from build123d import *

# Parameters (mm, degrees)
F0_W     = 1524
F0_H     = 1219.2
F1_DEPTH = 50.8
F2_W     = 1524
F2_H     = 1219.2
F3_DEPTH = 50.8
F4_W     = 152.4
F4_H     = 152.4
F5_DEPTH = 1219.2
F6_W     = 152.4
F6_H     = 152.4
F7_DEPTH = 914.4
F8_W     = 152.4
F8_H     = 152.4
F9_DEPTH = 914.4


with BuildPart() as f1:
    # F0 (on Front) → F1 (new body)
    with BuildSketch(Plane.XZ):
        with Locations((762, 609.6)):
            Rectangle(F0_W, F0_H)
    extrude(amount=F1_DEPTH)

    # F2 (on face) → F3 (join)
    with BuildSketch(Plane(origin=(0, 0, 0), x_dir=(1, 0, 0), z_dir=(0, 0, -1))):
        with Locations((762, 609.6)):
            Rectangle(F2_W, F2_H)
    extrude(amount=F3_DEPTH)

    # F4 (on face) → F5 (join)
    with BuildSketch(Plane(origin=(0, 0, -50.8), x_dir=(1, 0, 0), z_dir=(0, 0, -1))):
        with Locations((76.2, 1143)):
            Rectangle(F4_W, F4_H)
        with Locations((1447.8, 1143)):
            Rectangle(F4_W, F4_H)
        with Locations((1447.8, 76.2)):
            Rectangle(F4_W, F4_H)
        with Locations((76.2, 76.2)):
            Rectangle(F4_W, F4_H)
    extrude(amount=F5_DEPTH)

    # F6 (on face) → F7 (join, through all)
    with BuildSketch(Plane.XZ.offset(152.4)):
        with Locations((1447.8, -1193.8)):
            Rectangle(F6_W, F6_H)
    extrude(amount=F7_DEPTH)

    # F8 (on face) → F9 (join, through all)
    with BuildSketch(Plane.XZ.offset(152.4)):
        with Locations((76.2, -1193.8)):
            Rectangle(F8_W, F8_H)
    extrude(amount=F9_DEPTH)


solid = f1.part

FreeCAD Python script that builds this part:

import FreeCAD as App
import Part
import Sketcher
from FreeCAD import Vector
Q = App.Units.Quantity


def add_polygon(sketch, points):
    """Adds a closed chain of lines whose ends are joined by coincident constraints."""
    first, n = sketch.GeometryCount, len(points)
    for a, b in zip(points, points[1:] + points[:1]):
        sketch.addGeometry(Part.LineSegment(App.Vector(*a, 0), App.Vector(*b, 0)), False)
    for i in range(n):
        sketch.addConstraint(Sketcher.Constraint("Coincident", first + i, 2, first + (i + 1) % n, 1))

doc = App.newDocument("Part")
body = doc.addObject("PartDesign::Body", "Body")

# Sketch on XZ plane
sketch1 = body.newObject("Sketcher::SketchObject", "Sketch")
sketch1.AttachmentSupport = (doc.getObject("XZ_Plane"), [""])
sketch1.MapMode = "FlatFace"
add_polygon(sketch1, [(0, 1219), (0, 0), (1524, 0), (1524, 1219)])  # lines 0-3
sketch1.addConstraint(Sketcher.Constraint("Vertical", 0))
sketch1.addConstraint(Sketcher.Constraint("Horizontal", 1))
sketch1.addConstraint(Sketcher.Constraint("Vertical", 2))
sketch1.addConstraint(Sketcher.Constraint("Horizontal", 3))
sketch1.addConstraint(Sketcher.Constraint("Coincident", 0, 2, -1, 1))
sketch1.addConstraint(Sketcher.Constraint("DistanceX", 1, 1, 1, 2, Q("60 in")))
sketch1.addConstraint(Sketcher.Constraint("DistanceY", 0, 2, 0, 1, Q("48 in")))
pad1 = body.newObject("PartDesign::Pad", "Pad")
pad1.Profile = sketch1
pad1.Length = Q("2 in")

# Sketch on XY plane
sketch2 = body.newObject("Sketcher::SketchObject", "Sketch001")
sketch2.AttachmentSupport = (doc.getObject("XY_Plane"), [""])
sketch2.MapMode = "FlatFace"
add_polygon(sketch2, [(0, -1219), (0, 0), (1524, 0), (1524, -1219)])  # lines 0-3
sketch2.addConstraint(Sketcher.Constraint("Vertical", 0))
sketch2.addConstraint(Sketcher.Constraint("Horizontal", 1))
sketch2.addConstraint(Sketcher.Constraint("Vertical", 2))
sketch2.addConstraint(Sketcher.Constraint("Horizontal", 3))
sketch2.addConstraint(Sketcher.Constraint("Coincident", 0, 2, -1, 1))
sketch2.addConstraint(Sketcher.Constraint("DistanceX", 1, 1, 1, 2, Q("60 in")))
sketch2.addConstraint(Sketcher.Constraint("DistanceY", 0, 1, 0, 2, Q("48 in")))
pad2 = body.newObject("PartDesign::Pad", "Pad001")
pad2.Profile = sketch2
pad2.Length = Q("2 in")
pad2.Reversed = True

# Sketch on XY plane
sketch3 = body.newObject("Sketcher::SketchObject", "Sketch002")
sketch3.AttachmentSupport = (doc.getObject("XY_Plane"), [""])
sketch3.MapMode = "FlatFace"
sketch3.AttachmentOffset = App.Placement(Vector(0, 0, -2 * 25.4), App.Rotation())
add_polygon(sketch3, [(0, -1219), (0, -1067), (152, -1067), (152, -1219)])  # lines 0-3
add_polygon(sketch3, [(1372, -1219), (1372, -1067), (1524, -1067), (1524, -1219)])  # lines 4-7
add_polygon(sketch3, [(1372, -152), (1372, 0), (1524, 0), (1524, -152)])  # lines 8-11
add_polygon(sketch3, [(0, -152), (0, 0), (152, 0), (152, -152)])  # lines 12-15
sketch3.addConstraint(Sketcher.Constraint("Vertical", 0))
sketch3.addConstraint(Sketcher.Constraint("Horizontal", 1))
sketch3.addConstraint(Sketcher.Constraint("Vertical", 2))
sketch3.addConstraint(Sketcher.Constraint("Horizontal", 3))
sketch3.addConstraint(Sketcher.Constraint("Vertical", 4))
sketch3.addConstraint(Sketcher.Constraint("Horizontal", 5))
sketch3.addConstraint(Sketcher.Constraint("Vertical", 6))
sketch3.addConstraint(Sketcher.Constraint("Horizontal", 7))
sketch3.addConstraint(Sketcher.Constraint("Vertical", 8))
sketch3.addConstraint(Sketcher.Constraint("Horizontal", 9))
sketch3.addConstraint(Sketcher.Constraint("Vertical", 10))
sketch3.addConstraint(Sketcher.Constraint("Horizontal", 11))
sketch3.addConstraint(Sketcher.Constraint("Vertical", 12))
sketch3.addConstraint(Sketcher.Constraint("Horizontal", 13))
sketch3.addConstraint(Sketcher.Constraint("Vertical", 14))
sketch3.addConstraint(Sketcher.Constraint("Horizontal", 15))
sketch3.addConstraint(Sketcher.Constraint("Coincident", 12, 2, -1, 1))
sketch3.addConstraint(Sketcher.Constraint("PointOnObject", 0, 2, -2))
sketch3.addConstraint(Sketcher.Constraint("PointOnObject", 8, 2, -1))
sketch3.addConstraint(Sketcher.Constraint("Horizontal", 1, 2, 4, 2))
sketch3.addConstraint(Sketcher.Constraint("Horizontal", 3, 2, 6, 2))
sketch3.addConstraint(Sketcher.Constraint("Horizontal", 11, 2, 14, 2))
sketch3.addConstraint(Sketcher.Constraint("Vertical", 7, 2, 8, 2))
sketch3.addConstraint(Sketcher.Constraint("Vertical", 6, 2, 9, 2))
sketch3.addConstraint(Sketcher.Constraint("Vertical", 2, 2, 13, 2))
sketch3.addConstraint(Sketcher.Constraint("Equal", 3, 5))
sketch3.addConstraint(Sketcher.Constraint("Equal", 15, 0))
sketch3.addConstraint(Sketcher.Constraint("Equal", 6, 8))
sketch3.addConstraint(Sketcher.Constraint("DistanceX", 1, 1, 1, 2, Q("6 in")))
sketch3.addConstraint(Sketcher.Constraint("DistanceY", 0, 2, -1, 1, Q("42 in")))
sketch3.addConstraint(Sketcher.Constraint("DistanceX", -1, 1, 4, 2, Q("54 in")))
pad3 = body.newObject("PartDesign::Pad", "Pad002")
pad3.Profile = sketch3
pad3.Length = Q("48 in")
pad3.Reversed = True

# Sketch on XZ plane
sketch4 = body.newObject("Sketcher::SketchObject", "Sketch003")
sketch4.AttachmentSupport = (doc.getObject("XZ_Plane"), [""])
sketch4.MapMode = "FlatFace"
sketch4.AttachmentOffset = App.Placement(Vector(0, 0, 6 * 25.4), App.Rotation())
add_polygon(sketch4, [(1372, -1118), (1372, -1270), (1524, -1270), (1524, -1118)])  # lines 0-3
sketch4.addConstraint(Sketcher.Constraint("Vertical", 0))
sketch4.addConstraint(Sketcher.Constraint("Horizontal", 1))
sketch4.addConstraint(Sketcher.Constraint("Vertical", 2))
sketch4.addConstraint(Sketcher.Constraint("Horizontal", 3))
sketch4.addConstraint(Sketcher.Constraint("Equal", 3, 0))
sketch4.addConstraint(Sketcher.Constraint("DistanceX", 1, 1, 1, 2, Q("6 in")))
sketch4.addConstraint(Sketcher.Constraint("DistanceX", -1, 1, 0, 2, Q("54 in")))
sketch4.addConstraint(Sketcher.Constraint("DistanceY", 0, 2, -1, 1, Q("50 in")))
pad4 = body.newObject("PartDesign::Pad", "Pad003")
pad4.Profile = sketch4
pad4.Type = "UpToLast"

# Sketch on XZ plane
sketch5 = body.newObject("Sketcher::SketchObject", "Sketch004")
sketch5.AttachmentSupport = (doc.getObject("XZ_Plane"), [""])
sketch5.MapMode = "FlatFace"
sketch5.AttachmentOffset = App.Placement(Vector(0, 0, 6 * 25.4), App.Rotation())
add_polygon(sketch5, [(0, -1118), (0, -1270), (152, -1270), (152, -1118)])  # lines 0-3
sketch5.addConstraint(Sketcher.Constraint("Vertical", 0))
sketch5.addConstraint(Sketcher.Constraint("Horizontal", 1))
sketch5.addConstraint(Sketcher.Constraint("Vertical", 2))
sketch5.addConstraint(Sketcher.Constraint("Horizontal", 3))
sketch5.addConstraint(Sketcher.Constraint("PointOnObject", 0, 2, -2))
sketch5.addConstraint(Sketcher.Constraint("Equal", 3, 0))
sketch5.addConstraint(Sketcher.Constraint("DistanceX", 1, 1, 1, 2, Q("6 in")))
sketch5.addConstraint(Sketcher.Constraint("DistanceY", 0, 2, -1, 1, Q("50 in")))
pad5 = body.newObject("PartDesign::Pad", "Pad004")
pad5.Profile = sketch5
pad5.Type = "UpToLast"

doc.recompute()
